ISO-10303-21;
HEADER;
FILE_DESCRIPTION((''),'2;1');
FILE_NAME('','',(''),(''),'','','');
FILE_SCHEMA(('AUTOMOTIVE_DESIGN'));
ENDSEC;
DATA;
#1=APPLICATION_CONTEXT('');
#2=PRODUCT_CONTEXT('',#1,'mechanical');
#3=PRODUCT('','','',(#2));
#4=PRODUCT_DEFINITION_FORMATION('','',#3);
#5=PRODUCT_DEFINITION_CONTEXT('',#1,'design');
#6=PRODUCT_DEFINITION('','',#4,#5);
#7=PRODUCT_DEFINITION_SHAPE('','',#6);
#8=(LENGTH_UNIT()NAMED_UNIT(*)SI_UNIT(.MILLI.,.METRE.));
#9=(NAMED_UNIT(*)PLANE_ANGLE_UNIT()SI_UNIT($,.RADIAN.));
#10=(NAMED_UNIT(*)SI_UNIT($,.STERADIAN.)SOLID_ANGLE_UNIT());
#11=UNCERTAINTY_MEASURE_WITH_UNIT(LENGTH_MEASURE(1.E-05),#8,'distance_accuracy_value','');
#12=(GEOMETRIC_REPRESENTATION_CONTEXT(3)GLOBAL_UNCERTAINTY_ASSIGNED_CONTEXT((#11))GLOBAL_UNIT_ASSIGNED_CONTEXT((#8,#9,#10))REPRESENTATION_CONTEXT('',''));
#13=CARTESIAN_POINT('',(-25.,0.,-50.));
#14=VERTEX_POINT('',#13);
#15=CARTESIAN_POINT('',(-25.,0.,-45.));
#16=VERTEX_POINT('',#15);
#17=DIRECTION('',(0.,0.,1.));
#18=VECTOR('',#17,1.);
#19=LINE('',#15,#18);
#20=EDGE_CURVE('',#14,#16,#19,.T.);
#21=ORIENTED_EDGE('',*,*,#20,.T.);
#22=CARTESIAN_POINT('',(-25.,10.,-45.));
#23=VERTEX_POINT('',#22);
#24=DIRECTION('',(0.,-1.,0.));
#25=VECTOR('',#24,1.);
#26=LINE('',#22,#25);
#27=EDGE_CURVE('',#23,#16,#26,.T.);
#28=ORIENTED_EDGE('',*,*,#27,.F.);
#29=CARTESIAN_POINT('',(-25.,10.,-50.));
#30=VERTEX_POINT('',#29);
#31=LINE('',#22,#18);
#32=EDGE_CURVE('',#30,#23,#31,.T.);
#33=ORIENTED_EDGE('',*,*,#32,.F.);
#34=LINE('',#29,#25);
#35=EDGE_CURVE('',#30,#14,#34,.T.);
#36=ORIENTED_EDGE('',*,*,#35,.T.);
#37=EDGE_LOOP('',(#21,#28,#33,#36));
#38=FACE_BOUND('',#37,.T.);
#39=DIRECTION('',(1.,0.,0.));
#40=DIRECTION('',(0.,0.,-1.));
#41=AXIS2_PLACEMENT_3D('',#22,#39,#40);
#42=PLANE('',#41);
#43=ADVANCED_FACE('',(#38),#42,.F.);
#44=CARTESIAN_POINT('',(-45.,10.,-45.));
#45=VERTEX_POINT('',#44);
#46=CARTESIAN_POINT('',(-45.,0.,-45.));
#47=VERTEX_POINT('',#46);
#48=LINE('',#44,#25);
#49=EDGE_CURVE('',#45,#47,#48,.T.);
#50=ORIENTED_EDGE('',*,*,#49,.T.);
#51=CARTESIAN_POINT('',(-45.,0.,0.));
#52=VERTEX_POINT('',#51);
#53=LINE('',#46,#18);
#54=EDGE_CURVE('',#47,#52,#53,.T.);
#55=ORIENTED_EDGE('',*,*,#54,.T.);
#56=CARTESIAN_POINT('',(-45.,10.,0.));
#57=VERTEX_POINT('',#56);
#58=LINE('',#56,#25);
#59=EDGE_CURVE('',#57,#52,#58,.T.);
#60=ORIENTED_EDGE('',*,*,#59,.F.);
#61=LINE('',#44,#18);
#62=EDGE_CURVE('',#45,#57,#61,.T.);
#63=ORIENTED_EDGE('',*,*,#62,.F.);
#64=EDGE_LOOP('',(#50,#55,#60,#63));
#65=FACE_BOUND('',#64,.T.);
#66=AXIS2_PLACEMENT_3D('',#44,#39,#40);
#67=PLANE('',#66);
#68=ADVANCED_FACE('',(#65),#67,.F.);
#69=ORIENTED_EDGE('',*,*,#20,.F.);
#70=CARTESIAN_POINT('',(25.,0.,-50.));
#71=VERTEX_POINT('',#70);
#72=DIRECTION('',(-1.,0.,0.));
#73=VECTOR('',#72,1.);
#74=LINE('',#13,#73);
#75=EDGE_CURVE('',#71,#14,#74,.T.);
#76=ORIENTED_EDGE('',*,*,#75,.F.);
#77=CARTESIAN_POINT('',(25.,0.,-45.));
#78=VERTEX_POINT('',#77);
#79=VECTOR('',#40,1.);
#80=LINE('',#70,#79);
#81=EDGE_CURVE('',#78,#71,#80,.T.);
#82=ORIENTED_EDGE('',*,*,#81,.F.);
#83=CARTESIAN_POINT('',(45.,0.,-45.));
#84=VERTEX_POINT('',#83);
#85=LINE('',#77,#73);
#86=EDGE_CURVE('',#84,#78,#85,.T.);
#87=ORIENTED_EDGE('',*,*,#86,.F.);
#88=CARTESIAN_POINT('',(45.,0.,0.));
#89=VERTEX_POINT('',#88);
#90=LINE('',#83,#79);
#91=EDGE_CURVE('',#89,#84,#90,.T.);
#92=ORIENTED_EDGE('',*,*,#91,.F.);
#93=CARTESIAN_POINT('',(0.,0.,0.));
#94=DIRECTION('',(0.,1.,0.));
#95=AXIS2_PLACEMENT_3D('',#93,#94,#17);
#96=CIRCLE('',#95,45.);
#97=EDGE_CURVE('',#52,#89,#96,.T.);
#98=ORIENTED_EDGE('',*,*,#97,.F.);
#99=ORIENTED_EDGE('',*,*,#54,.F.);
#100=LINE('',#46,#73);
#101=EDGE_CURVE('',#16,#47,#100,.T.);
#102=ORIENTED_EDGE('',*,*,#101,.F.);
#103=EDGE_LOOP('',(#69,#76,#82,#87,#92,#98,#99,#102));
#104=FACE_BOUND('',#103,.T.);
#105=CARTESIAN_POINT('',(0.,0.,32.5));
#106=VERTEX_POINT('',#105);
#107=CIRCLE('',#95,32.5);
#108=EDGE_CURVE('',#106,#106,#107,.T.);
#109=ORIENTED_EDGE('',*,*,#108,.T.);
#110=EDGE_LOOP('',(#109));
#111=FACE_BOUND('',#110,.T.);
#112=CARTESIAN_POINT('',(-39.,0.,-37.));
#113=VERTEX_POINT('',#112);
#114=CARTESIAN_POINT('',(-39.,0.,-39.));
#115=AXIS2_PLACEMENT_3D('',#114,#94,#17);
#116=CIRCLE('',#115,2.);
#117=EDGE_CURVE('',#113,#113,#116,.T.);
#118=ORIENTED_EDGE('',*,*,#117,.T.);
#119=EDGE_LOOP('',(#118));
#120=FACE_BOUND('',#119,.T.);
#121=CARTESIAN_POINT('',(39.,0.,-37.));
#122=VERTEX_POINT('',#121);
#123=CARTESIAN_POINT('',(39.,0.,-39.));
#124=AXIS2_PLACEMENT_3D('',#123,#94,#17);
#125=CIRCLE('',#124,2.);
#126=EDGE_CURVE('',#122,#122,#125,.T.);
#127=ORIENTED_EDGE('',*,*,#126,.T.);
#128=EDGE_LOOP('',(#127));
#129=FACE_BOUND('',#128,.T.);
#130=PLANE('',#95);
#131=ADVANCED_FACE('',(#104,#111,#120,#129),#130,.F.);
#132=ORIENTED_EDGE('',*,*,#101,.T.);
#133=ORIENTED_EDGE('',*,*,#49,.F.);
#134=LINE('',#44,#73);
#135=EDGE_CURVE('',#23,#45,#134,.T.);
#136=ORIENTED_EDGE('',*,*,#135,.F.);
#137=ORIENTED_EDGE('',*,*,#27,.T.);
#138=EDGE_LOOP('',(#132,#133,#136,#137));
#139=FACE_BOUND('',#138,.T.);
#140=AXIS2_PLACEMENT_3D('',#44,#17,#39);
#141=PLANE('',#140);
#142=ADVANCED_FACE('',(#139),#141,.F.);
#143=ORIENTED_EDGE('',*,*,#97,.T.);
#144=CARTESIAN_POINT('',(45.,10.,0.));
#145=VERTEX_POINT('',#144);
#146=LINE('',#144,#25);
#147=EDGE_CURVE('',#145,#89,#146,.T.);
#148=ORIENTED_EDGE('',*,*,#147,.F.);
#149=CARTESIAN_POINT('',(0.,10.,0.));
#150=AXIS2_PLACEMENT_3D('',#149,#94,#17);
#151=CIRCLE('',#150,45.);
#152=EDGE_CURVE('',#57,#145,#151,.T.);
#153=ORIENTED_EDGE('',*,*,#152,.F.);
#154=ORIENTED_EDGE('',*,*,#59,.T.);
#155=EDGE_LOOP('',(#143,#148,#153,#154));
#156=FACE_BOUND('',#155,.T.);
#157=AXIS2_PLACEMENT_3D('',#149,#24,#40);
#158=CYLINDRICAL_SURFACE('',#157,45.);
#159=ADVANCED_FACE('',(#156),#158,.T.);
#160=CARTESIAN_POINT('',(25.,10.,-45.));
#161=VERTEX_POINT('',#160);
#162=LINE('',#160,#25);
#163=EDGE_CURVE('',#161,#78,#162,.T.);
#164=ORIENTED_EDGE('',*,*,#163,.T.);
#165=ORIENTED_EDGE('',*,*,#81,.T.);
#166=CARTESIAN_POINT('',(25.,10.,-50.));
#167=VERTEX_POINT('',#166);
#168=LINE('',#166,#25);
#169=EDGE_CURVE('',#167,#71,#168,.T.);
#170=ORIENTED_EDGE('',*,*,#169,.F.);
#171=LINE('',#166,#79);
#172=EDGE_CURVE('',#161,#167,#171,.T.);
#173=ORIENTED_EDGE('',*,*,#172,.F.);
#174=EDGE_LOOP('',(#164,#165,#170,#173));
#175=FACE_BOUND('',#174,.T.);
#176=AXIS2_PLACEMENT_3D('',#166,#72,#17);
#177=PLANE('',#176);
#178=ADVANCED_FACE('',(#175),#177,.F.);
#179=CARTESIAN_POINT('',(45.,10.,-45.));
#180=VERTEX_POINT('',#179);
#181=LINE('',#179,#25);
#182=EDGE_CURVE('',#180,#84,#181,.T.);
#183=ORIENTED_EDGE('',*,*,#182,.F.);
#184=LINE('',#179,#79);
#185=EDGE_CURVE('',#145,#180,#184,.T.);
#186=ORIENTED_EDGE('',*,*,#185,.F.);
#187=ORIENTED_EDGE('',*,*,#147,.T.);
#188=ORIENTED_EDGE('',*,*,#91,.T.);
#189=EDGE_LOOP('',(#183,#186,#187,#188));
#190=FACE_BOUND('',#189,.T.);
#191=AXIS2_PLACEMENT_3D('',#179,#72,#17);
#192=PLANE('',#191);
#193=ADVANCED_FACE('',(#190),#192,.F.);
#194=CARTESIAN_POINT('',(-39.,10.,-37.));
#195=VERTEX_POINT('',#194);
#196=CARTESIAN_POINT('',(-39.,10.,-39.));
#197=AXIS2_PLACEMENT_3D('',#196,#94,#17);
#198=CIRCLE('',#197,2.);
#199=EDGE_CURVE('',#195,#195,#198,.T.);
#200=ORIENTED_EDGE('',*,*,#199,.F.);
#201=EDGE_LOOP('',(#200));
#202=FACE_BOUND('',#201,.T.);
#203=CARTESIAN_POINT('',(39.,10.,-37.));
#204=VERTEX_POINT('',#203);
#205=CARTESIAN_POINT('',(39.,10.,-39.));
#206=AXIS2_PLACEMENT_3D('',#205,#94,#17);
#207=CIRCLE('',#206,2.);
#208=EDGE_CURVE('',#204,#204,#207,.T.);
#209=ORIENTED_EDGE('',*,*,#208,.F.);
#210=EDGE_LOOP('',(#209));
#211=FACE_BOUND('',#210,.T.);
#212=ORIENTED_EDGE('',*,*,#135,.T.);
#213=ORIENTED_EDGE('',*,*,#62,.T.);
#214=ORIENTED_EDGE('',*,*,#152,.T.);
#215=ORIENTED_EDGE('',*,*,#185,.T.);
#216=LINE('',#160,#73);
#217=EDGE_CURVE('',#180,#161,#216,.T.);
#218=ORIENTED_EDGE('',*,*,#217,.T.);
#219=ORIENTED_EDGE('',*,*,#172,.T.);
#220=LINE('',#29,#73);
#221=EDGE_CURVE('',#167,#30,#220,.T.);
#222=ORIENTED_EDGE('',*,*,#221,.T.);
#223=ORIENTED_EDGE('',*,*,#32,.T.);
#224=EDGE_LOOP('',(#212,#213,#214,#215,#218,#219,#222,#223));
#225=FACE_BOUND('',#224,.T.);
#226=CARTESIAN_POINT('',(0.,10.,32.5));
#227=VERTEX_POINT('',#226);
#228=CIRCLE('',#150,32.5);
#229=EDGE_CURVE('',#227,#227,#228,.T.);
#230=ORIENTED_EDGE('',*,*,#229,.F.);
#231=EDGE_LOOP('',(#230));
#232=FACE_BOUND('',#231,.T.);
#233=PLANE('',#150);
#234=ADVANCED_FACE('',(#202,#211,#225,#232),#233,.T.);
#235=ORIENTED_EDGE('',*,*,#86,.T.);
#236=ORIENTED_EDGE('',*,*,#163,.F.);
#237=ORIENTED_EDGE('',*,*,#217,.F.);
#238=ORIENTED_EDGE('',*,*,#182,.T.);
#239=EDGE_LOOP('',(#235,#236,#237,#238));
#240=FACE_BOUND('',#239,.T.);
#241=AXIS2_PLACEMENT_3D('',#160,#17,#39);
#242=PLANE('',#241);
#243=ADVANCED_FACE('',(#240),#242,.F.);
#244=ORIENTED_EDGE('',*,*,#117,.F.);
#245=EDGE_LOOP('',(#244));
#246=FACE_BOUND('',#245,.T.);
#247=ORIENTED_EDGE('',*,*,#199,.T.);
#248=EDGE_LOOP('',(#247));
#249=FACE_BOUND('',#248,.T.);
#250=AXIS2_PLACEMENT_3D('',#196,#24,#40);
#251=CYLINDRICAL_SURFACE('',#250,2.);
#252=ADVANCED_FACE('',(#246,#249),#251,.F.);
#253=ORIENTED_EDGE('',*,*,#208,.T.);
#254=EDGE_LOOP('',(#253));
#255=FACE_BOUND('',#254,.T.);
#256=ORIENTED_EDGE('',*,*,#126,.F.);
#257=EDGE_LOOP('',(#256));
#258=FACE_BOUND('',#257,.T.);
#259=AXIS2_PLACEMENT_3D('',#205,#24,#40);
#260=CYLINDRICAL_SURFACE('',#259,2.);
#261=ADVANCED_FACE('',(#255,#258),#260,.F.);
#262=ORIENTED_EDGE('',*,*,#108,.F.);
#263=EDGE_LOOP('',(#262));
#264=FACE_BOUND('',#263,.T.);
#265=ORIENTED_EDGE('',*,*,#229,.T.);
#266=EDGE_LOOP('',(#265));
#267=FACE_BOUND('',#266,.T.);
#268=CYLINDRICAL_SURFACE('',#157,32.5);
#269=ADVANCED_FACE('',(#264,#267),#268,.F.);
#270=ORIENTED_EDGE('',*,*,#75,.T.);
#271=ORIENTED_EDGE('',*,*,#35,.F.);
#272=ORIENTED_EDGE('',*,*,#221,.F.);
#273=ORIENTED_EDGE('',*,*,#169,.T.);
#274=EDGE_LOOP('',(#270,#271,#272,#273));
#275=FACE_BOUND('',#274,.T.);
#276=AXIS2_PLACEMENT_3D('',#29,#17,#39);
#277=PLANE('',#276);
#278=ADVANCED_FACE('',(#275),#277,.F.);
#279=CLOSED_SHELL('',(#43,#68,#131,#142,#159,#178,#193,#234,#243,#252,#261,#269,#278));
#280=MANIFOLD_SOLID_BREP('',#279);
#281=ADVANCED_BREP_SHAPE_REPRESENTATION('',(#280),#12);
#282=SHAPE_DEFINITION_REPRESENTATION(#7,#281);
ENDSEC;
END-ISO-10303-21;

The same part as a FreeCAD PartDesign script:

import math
import FreeCAD as App
import Part
import Sketcher
from FreeCAD import Vector

doc = App.newDocument("Part")
body = doc.addObject("PartDesign::Body", "Body")

# Sketch on XZ plane
sketch1 = body.newObject("Sketcher::SketchObject", "Sketch")
sketch1.AttachmentSupport = (doc.getObject("XZ_Plane"), [""])
sketch1.MapMode = "FlatFace"
sketch1.addGeometry(Part.LineSegment(Vector(-25, -50, 0), Vector(-25, -45, 0)), False)
sketch1.addGeometry(Part.LineSegment(Vector(-25, -45, 0), Vector(-45, -45, 0)), False)
sketch1.addGeometry(Part.LineSegment(Vector(-45, -45, 0), Vector(-45, 0, 0)), False)
sketch1.addGeometry(Part.ArcOfCircle(Part.Circle(Vector(0, 0, 0), Vector(0, 0, 1), 45), math.radians(0), math.radians(180)), False)
sketch1.addGeometry(Part.LineSegment(Vector(45, 0, 0), Vector(45, -45, 0)), False)
sketch1.addGeometry(Part.LineSegment(Vector(45, -45, 0), Vector(25, -45, 0)), False)
sketch1.addGeometry(Part.LineSegment(Vector(25, -45, 0), Vector(25, -50, 0)), False)
sketch1.addGeometry(Part.LineSegment(Vector(25, -50, 0), Vector(-25, -50, 0)), False)
sketch1.addGeometry(Part.Circle(Vector(0, 0, 0), Vector(0, 0, 1), 32.5), False)
sketch1.addGeometry(Part.Circle(Vector(39, -39, 0), Vector(0, 0, 1), 2), False)
sketch1.addGeometry(Part.Circle(Vector(-39, -39, 0), Vector(0, 0, 1), 2), False)
sketch1.addConstraint(Sketcher.Constraint("Coincident", 0, 2, 1, 1))
sketch1.addConstraint(Sketcher.Constraint("Coincident", 1, 2, 2, 1))
sketch1.addConstraint(Sketcher.Constraint("Tangent", 2, 2, 3, 2))
sketch1.addConstraint(Sketcher.Constraint("Tangent", 3, 1, 4, 1))
sketch1.addConstraint(Sketcher.Constraint("Coincident", 4, 2, 5, 1))
sketch1.addConstraint(Sketcher.Constraint("Coincident", 5, 2, 6, 1))
sketch1.addConstraint(Sketcher.Constraint("Coincident", 6, 2, 7, 1))
sketch1.addConstraint(Sketcher.Constraint("Coincident", 7, 2, 0, 1))
sketch1.addConstraint(Sketcher.Constraint("Vertical", 0))
sketch1.addConstraint(Sketcher.Constraint("Horizontal", 1))
sketch1.addConstraint(Sketcher.Constraint("Vertical", 2))
sketch1.addConstraint(Sketcher.Constraint("Vertical", 4))
sketch1.addConstraint(Sketcher.Constraint("Horizontal", 5))
sketch1.addConstraint(Sketcher.Constraint("Vertical", 6))
sketch1.addConstraint(Sketcher.Constraint("Horizontal", 7))
sketch1.addConstraint(Sketcher.Constraint("Coincident", 3, 3, -1, 1))
sketch1.addConstraint(Sketcher.Constraint("Coincident", 8, 3, -1, 1))
sketch1.addConstraint(Sketcher.Constraint("Equal", 9, 10))
sketch1.addConstraint(Sketcher.Constraint("Symmetric", 9, 3, 10, 3, -2))
sketch1.addConstraint(Sketcher.Constraint("Symmetric", 0, 2, 5, 2, -2))
sketch1.addConstraint(Sketcher.Constraint("Diameter", 8, 65.0))
sketch1.addConstraint(Sketcher.Constraint("Diameter", 9, 4.0))
sketch1.addConstraint(Sketcher.Constraint("Radius", 3, 45.0))
sketch1.addConstraint(Sketcher.Constraint("DistanceX", 1, 2, 1, 1, 20.0))
sketch1.addConstraint(Sketcher.Constraint("DistanceY", 0, 1, 0, 2, 5.0))
sketch1.addConstraint(Sketcher.Constraint("DistanceY", 2, 1, 2, 2, 45.0))
sketch1.addConstraint(Sketcher.Constraint("DistanceX", -1, 1, 9, 3, 39.0))
sketch1.addConstraint(Sketcher.Constraint("DistanceY", 9, 3, -1, 1, 39.0))
pad1 = body.newObject("PartDesign::Pad", "Pad")
pad1.Profile = sketch1
pad1.Length = 10
pad1.Reversed = True

doc.recompute()
